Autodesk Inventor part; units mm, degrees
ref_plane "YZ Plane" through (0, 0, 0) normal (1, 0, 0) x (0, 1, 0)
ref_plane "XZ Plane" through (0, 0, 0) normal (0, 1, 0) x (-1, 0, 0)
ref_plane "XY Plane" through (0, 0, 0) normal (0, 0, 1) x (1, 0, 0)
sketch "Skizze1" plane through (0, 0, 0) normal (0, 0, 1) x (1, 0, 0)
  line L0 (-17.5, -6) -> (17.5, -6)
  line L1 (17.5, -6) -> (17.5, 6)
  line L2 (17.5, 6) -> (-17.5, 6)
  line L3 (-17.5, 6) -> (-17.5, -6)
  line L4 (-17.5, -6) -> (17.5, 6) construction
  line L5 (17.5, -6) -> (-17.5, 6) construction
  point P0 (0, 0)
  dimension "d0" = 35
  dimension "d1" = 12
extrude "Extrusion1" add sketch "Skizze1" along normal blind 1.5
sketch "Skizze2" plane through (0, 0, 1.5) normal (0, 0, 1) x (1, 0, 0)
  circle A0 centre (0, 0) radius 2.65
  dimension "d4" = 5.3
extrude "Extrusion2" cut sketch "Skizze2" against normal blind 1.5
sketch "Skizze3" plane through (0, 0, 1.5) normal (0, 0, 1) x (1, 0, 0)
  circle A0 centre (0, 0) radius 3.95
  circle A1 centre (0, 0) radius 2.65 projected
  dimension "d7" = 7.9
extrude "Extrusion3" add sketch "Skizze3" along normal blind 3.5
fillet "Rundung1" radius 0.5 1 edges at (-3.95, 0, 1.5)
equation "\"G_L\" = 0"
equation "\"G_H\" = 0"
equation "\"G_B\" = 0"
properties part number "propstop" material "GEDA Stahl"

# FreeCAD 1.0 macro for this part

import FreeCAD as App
import Part
import Sketcher
Q = App.Units.Quantity


def edges_at(feature, points):
    """Names of the edges that pass closest to the given points."""
    edges = feature.Shape.Edges
    near = lambda p: min(range(len(edges)), key=lambda i: edges[i].distToShape(Part.Vertex(*p))[0])
    return sorted({f"Edge{near(p) + 1}" for p in points})

doc = App.newDocument("Part")
body = doc.addObject("PartDesign::Body", "Body")

# Sketch on XY plane
sketch1 = body.newObject("Sketcher::SketchObject", "Sketch")
sketch1.AttachmentSupport = (doc.getObject("XY_Plane"), [""])
sketch1.MapMode = "FlatFace"
sketch1.addGeometry(Part.LineSegment(App.Vector(-18, 6, 0), App.Vector(-18, -6, 0)), False)
sketch1.addGeometry(Part.LineSegment(App.Vector(-18, -6, 0), App.Vector(18, -6, 0)), False)
sketch1.addGeometry(Part.LineSegment(App.Vector(18, -6, 0), App.Vector(18, 6, 0)), False)
sketch1.addGeometry(Part.LineSegment(App.Vector(18, 6, 0), App.Vector(-18, 6, 0)), False)
sketch1.addConstraint(Sketcher.Constraint("Coincident", 0, 2, 1, 1))
sketch1.addConstraint(Sketcher.Constraint("Coincident", 1, 2, 2, 1))
sketch1.addConstraint(Sketcher.Constraint("Coincident", 2, 2, 3, 1))
sketch1.addConstraint(Sketcher.Constraint("Coincident", 3, 2, 0, 1))
sketch1.addConstraint(Sketcher.Constraint("Vertical", 0))
sketch1.addConstraint(Sketcher.Constraint("Horizontal", 1))
sketch1.addConstraint(Sketcher.Constraint("Vertical", 2))
sketch1.addConstraint(Sketcher.Constraint("Horizontal", 3))
sketch1.addConstraint(Sketcher.Constraint("Symmetric", 0, 2, 2, 2, -1, 1))
sketch1.addConstraint(Sketcher.Constraint("DistanceX", 1, 1, 1, 2, Q("35 mm")))
sketch1.addConstraint(Sketcher.Constraint("DistanceY", 0, 2, 0, 1, Q("12 mm")))
pad1 = body.newObject("PartDesign::Pad", "Pad")
pad1.Profile = sketch1
pad1.Length = 1.5

# Sketch on XY plane
sketch2 = body.newObject("Sketcher::SketchObject", "Sketch001")
sketch2.AttachmentSupport = (doc.getObject("XY_Plane"), [""])
sketch2.MapMode = "FlatFace"
sketch2.AttachmentOffset = App.Placement(App.Vector(0, 0, 1.5), App.Rotation())
sketch2.addGeometry(Part.Circle(App.Vector(0, 0, 0), App.Vector(0, 0, 1), 2.6), False)
sketch2.addConstraint(Sketcher.Constraint("Coincident", 0, 3, -1, 1))
sketch2.addConstraint(Sketcher.Constraint("Diameter", 0, Q("5.3 mm")))
pocket1 = body.newObject("PartDesign::Pocket", "Pocket")
pocket1.Profile = sketch2
pocket1.Length = 1.5

# Sketch on XY plane
sketch3 = body.newObject("Sketcher::SketchObject", "Sketch002")
sketch3.AttachmentSupport = (doc.getObject("XY_Plane"), [""])
sketch3.MapMode = "FlatFace"
sketch3.AttachmentOffset = App.Placement(App.Vector(0, 0, 1.5), App.Rotation())
sketch3.addGeometry(Part.Circle(App.Vector(0, 0, 0), App.Vector(0, 0, 1), 4), False)
sketch3.addGeometry(Part.Circle(App.Vector(0, 0, 0), App.Vector(0, 0, 1), 2.6), False)
sketch3.addConstraint(Sketcher.Constraint("Coincident", 0, 3, -1, 1))
sketch3.addConstraint(Sketcher.Constraint("Coincident", 1, 3, -1, 1))
sketch3.addConstraint(Sketcher.Constraint("Diameter", 0, Q("7.9 mm")))
sketch3.addConstraint(Sketcher.Constraint("Diameter", 1, Q("5.3 mm")))
pad2 = body.newObject("PartDesign::Pad", "Pad001")
pad2.Profile = sketch3
pad2.Length = 3.5
doc.recompute()

fillet = body.newObject("PartDesign::Fillet", "Fillet")
fillet.Base = (pad2, edges_at(pad2, [(-3.95, 0, 1.5)]))
fillet.Radius = 0.5

doc.recompute()
